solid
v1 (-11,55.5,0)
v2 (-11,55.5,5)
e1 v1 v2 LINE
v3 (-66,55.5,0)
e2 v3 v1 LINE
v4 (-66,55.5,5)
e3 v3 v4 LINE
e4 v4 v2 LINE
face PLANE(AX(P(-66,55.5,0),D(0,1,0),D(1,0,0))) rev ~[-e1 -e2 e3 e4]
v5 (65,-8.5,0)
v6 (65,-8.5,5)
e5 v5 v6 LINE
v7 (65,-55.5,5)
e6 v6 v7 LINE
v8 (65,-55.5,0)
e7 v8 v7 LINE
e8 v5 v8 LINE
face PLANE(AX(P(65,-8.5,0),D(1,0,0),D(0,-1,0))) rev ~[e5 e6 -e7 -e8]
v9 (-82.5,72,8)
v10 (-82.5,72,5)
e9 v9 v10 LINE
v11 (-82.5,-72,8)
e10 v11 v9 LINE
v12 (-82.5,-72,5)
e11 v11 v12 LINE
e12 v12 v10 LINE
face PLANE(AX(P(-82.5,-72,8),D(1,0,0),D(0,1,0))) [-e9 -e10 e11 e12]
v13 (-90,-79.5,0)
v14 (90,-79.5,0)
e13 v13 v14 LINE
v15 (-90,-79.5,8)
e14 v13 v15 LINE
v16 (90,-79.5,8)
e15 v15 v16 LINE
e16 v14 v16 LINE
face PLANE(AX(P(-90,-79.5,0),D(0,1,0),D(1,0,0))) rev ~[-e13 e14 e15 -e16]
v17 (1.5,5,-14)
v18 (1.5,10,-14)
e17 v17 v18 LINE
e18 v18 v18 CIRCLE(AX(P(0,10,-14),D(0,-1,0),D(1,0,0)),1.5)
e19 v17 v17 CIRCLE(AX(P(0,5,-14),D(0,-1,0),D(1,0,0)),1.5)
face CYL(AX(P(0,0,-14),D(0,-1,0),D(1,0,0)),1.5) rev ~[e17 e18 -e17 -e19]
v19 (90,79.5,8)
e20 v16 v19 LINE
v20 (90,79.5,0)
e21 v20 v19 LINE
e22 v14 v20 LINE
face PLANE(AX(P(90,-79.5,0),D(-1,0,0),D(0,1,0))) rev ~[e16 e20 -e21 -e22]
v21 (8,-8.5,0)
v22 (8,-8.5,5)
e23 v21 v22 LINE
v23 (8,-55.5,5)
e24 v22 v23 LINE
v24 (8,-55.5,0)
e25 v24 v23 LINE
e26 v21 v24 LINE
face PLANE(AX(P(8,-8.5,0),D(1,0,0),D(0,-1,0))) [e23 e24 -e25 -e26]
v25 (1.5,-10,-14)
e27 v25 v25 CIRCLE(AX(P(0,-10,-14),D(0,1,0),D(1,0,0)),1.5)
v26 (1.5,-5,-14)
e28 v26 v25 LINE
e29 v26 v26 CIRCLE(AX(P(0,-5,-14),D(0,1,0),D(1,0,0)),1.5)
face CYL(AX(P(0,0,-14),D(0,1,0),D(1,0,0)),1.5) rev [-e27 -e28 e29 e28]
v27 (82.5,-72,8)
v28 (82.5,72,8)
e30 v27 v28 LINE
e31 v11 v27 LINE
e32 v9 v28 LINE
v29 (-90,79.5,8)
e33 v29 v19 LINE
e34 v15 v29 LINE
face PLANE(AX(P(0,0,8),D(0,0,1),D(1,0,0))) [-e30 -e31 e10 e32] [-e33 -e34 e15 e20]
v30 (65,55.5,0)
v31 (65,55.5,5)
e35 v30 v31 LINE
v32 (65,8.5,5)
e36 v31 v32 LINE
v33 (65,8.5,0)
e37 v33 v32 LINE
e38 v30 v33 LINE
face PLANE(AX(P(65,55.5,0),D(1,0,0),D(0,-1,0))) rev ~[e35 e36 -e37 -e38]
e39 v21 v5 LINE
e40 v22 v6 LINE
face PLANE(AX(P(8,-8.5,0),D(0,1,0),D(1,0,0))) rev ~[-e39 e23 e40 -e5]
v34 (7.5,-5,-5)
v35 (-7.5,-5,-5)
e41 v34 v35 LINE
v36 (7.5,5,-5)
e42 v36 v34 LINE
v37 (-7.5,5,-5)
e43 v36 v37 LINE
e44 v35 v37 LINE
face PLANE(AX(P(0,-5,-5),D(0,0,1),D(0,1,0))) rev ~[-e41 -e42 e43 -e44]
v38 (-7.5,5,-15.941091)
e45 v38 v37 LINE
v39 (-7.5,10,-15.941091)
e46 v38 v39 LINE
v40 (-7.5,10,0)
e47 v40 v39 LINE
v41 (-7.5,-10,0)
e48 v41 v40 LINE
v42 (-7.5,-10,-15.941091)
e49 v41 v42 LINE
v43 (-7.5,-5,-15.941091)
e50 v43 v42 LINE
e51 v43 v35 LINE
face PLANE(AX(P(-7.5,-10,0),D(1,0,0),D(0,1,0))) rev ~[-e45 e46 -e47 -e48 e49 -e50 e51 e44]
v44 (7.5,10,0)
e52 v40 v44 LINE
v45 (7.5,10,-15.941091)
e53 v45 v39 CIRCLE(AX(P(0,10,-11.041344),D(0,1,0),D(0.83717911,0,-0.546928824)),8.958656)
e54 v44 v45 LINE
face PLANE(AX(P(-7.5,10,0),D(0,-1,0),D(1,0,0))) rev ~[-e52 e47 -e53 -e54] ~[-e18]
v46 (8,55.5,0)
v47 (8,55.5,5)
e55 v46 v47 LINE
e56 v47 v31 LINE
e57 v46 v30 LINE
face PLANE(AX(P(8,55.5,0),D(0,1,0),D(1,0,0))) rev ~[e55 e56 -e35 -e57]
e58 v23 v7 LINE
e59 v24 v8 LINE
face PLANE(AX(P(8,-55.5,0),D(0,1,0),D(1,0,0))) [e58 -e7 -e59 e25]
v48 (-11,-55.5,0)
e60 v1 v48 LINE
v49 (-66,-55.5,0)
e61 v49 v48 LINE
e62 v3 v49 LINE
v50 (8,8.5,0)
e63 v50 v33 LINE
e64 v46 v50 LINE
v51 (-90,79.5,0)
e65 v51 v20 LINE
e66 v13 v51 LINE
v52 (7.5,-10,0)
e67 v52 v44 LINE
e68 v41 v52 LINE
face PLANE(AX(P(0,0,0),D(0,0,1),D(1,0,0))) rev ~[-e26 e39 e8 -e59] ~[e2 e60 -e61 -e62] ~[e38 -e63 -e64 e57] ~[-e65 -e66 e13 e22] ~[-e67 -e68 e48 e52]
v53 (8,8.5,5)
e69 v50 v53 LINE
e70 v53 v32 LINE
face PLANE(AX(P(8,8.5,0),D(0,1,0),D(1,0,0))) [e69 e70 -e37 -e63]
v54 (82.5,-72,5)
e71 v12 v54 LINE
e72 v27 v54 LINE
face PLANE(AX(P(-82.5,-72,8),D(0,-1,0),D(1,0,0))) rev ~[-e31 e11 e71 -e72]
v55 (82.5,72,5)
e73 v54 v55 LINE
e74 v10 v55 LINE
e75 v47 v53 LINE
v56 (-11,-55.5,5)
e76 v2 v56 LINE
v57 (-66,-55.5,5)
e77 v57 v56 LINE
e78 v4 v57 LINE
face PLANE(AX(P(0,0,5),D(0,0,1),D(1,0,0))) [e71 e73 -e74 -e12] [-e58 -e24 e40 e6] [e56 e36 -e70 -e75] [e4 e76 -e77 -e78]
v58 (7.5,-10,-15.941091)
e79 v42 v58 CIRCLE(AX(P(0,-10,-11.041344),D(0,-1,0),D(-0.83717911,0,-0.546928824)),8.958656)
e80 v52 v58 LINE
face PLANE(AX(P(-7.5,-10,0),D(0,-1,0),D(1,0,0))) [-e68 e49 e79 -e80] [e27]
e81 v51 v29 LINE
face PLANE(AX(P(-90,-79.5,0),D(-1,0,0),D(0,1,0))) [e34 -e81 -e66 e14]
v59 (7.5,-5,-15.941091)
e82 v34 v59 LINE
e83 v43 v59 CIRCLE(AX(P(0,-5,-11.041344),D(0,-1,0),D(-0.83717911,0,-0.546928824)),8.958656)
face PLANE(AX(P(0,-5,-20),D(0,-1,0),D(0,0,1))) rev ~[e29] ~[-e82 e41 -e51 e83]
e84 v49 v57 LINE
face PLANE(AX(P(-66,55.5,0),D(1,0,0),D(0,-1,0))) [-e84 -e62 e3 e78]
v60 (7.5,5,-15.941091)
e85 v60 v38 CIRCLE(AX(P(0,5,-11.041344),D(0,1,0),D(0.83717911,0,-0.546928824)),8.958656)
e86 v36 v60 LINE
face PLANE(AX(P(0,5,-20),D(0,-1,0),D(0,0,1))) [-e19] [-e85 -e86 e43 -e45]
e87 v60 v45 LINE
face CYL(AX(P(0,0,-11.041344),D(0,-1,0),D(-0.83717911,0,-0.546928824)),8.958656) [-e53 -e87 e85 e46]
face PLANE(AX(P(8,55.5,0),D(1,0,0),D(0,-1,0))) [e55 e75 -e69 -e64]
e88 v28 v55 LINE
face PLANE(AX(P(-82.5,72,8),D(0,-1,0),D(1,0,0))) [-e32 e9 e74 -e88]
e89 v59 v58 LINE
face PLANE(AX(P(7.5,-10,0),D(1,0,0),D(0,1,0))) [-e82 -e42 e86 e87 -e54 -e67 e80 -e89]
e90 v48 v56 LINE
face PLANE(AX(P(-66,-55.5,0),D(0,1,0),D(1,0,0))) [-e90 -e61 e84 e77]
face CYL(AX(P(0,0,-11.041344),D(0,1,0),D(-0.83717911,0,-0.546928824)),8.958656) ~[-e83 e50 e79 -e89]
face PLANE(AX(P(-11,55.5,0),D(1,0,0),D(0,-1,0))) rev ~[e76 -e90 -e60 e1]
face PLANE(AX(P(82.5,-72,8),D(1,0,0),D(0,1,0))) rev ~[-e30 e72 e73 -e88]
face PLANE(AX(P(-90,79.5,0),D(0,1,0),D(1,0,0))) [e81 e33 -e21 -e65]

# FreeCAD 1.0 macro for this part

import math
import FreeCAD as App
import Part
import Sketcher

V = App.Vector


def add_polygon(sketch, points):
    """Adds a closed chain of lines whose ends are joined by coincident constraints."""
    first, n = sketch.GeometryCount, len(points)
    for a, b in zip(points, points[1:] + points[:1]):
        sketch.addGeometry(Part.LineSegment(App.Vector(*a, 0), App.Vector(*b, 0)), False)
    for i in range(n):
        sketch.addConstraint(Sketcher.Constraint("Coincident", first + i, 2, first + (i + 1) % n, 1))

doc = App.newDocument("Part")
body = doc.addObject("PartDesign::Body", "Body")

# Sketch on XY plane
sketch1 = body.newObject("Sketcher::SketchObject", "Sketch")
sketch1.AttachmentSupport = (doc.getObject("XY_Plane"), [""])
sketch1.MapMode = "FlatFace"
add_polygon(sketch1, [(-90, 80), (-90, -80), (90, -80), (90, 80)])  # lines 0-3
sketch1.addConstraint(Sketcher.Constraint("Vertical", 0))
sketch1.addConstraint(Sketcher.Constraint("Horizontal", 1))
sketch1.addConstraint(Sketcher.Constraint("Vertical", 2))
sketch1.addConstraint(Sketcher.Constraint("Horizontal", 3))
sketch1.addConstraint(Sketcher.Constraint("Symmetric", 0, 2, 2, 2, -1, 1))
sketch1.addConstraint(Sketcher.Constraint("DistanceX", 1, 1, 1, 2, 180.0))
sketch1.addConstraint(Sketcher.Constraint("DistanceY", 0, 2, 0, 1, 159.0))
pad1 = body.newObject("PartDesign::Pad", "Pad")
pad1.Profile = sketch1
pad1.Length = 8

# Sketch on XY plane
sketch2 = body.newObject("Sketcher::SketchObject", "Sketch001")
sketch2.AttachmentSupport = (doc.getObject("XY_Plane"), [""])
sketch2.MapMode = "FlatFace"
add_polygon(sketch2, [(-66, -56), (-66, 56), (-11, 56), (-11, -56)])  # lines 0-3
add_polygon(sketch2, [(8, -56), (8, -8), (65, -8), (65, -56)])  # lines 4-7
add_polygon(sketch2, [(8, 8), (8, 56), (65, 56), (65, 8)])  # lines 8-11
sketch2.addConstraint(Sketcher.Constraint("Vertical", 0))
sketch2.addConstraint(Sketcher.Constraint("Horizontal", 1))
sketch2.addConstraint(Sketcher.Constraint("Vertical", 2))
sketch2.addConstraint(Sketcher.Constraint("Horizontal", 3))
sketch2.addConstraint(Sketcher.Constraint("Vertical", 4))
sketch2.addConstraint(Sketcher.Constraint("Horizontal", 5))
sketch2.addConstraint(Sketcher.Constraint("Vertical", 6))
sketch2.addConstraint(Sketcher.Constraint("Horizontal", 7))
sketch2.addConstraint(Sketcher.Constraint("Vertical", 8))
sketch2.addConstraint(Sketcher.Constraint("Horizontal", 9))
sketch2.addConstraint(Sketcher.Constraint("Vertical", 10))
sketch2.addConstraint(Sketcher.Constraint("Horizontal", 11))
sketch2.addConstraint(Sketcher.Constraint("Symmetric", 7, 2, 8, 2, -1))
sketch2.addConstraint(Sketcher.Constraint("Symmetric", 5, 2, 10, 2, -1))
sketch2.addConstraint(Sketcher.Constraint("Horizontal", 3, 2, 6, 2))
sketch2.addConstraint(Sketcher.Constraint("Horizontal", 1, 2, 8, 2))
sketch2.addConstraint(Sketcher.Constraint("DistanceX", 1, 1, 1, 2, 55.0))
sketch2.addConstraint(Sketcher.Constraint("DistanceX", 5, 1, 5, 2, 57.0))
sketch2.addConstraint(Sketcher.Constraint("DistanceY", 0, 1, 0, 2, 111.0))
sketch2.addConstraint(Sketcher.Constraint("DistanceY", 4, 1, 4, 2, 47.0))
sketch2.addConstraint(Sketcher.Constraint("DistanceX", 0, 2, -1, 1, 66.0))
sketch2.addConstraint(Sketcher.Constraint("DistanceX", -1, 1, 4, 2, 8.0))
pocket1 = body.newObject("PartDesign::Pocket", "Pocket")
pocket1.Profile = sketch2
pocket1.Type = "ThroughAll"
pocket1.Reversed = True

# Sketch on XY plane
sketch3 = body.newObject("Sketcher::SketchObject", "Sketch002")
sketch3.AttachmentSupport = (doc.getObject("XY_Plane"), [""])
sketch3.MapMode = "FlatFace"
add_polygon(sketch3, [(-8, 10), (-8, -10), (8, -10), (8, 10)])  # lines 0-3
sketch3.addConstraint(Sketcher.Constraint("Vertical", 0))
sketch3.addConstraint(Sketcher.Constraint("Horizontal", 1))
sketch3.addConstraint(Sketcher.Constraint("Vertical", 2))
sketch3.addConstraint(Sketcher.Constraint("Horizontal", 3))
sketch3.addConstraint(Sketcher.Constraint("Symmetric", 0, 2, 2, 2, -1, 1))
sketch3.addConstraint(Sketcher.Constraint("DistanceX", 1, 1, 1, 2, 15.0))
sketch3.addConstraint(Sketcher.Constraint("DistanceY", 0, 2, 0, 1, 20.0))
pad2 = body.newObject("PartDesign::Pad", "Pad001")
pad2.Profile = sketch3
pad2.Length = 20
pad2.Reversed = True

# Sketch on YZ plane
sketch4 = body.newObject("Sketcher::SketchObject", "Sketch003")
sketch4.AttachmentSupport = (doc.getObject("YZ_Plane"), [""])
sketch4.MapMode = "FlatFace"
add_polygon(sketch4, [(-5, -5), (-5, -20), (5, -20), (5, -5)])  # lines 0-3
sketch4.addConstraint(Sketcher.Constraint("Vertical", 0))
sketch4.addConstraint(Sketcher.Constraint("Horizontal", 1))
sketch4.addConstraint(Sketcher.Constraint("Vertical", 2))
sketch4.addConstraint(Sketcher.Constraint("Horizontal", 3))
sketch4.addConstraint(Sketcher.Constraint("DistanceX", 1, 1, 1, 2, 10.0))
sketch4.addConstraint(Sketcher.Constraint("DistanceY", 0, 2, 0, 1, 15.0))
sketch4.addConstraint(Sketcher.Constraint("DistanceX", 0, 2, -1, 1, 5.0))
sketch4.addConstraint(Sketcher.Constraint("DistanceY", 0, 2, -1, 1, 20.0))
pocket2 = body.newObject("PartDesign::Pocket", "Pocket001")
pocket2.Profile = sketch4
pocket2.Type = "ThroughAll"
pocket2.Midplane = True

# Sketch on XZ plane
sketch5 = body.newObject("Sketcher::SketchObject", "Sketch004")
sketch5.AttachmentSupport = (doc.getObject("XZ_Plane"), [""])
sketch5.MapMode = "FlatFace"
sketch5.addGeometry(Part.Circle(V(0, -14, 0), V(0, 0, 1), 1.5), False)
sketch5.addGeometry(Part.ArcOfCircle(Part.Circle(V(0, -11, 0), V(0, 0, 1), 9), math.radians(-147), math.radians(-33)), False)
sketch5.addGeometry(Part.LineSegment(V(-7.5, -15.9, 0), V(-9.5, -15.9, 0)), False)
sketch5.addGeometry(Part.LineSegment(V(-9.5, -15.9, 0), V(-9.5, -32.9, 0)), False)
sketch5.addGeometry(Part.LineSegment(V(-9.5, -32.9, 0), V(9.5, -32.9, 0)), False)
sketch5.addGeometry(Part.LineSegment(V(9.5, -32.9, 0), V(9.5, -15.9, 0)), False)
sketch5.addGeometry(Part.LineSegment(V(9.5, -15.9, 0), V(7.5, -15.9, 0)), False)
sketch5.addConstraint(Sketcher.Constraint("Coincident", 1, 1, 2, 1))
sketch5.addConstraint(Sketcher.Constraint("Coincident", 2, 2, 3, 1))
sketch5.addConstraint(Sketcher.Constraint("Coincident", 3, 2, 4, 1))
sketch5.addConstraint(Sketcher.Constraint("Coincident", 4, 2, 5, 1))
sketch5.addConstraint(Sketcher.Constraint("Coincident", 5, 2, 6, 1))
sketch5.addConstraint(Sketcher.Constraint("Coincident", 6, 2, 1, 2))
sketch5.addConstraint(Sketcher.Constraint("Horizontal", 2))
sketch5.addConstraint(Sketcher.Constraint("Vertical", 3))
sketch5.addConstraint(Sketcher.Constraint("Horizontal", 4))
sketch5.addConstraint(Sketcher.Constraint("Vertical", 5))
sketch5.addConstraint(Sketcher.Constraint("Horizontal", 6))
sketch5.addConstraint(Sketcher.Constraint("Symmetric", 2, 2, 5, 2, -2))
sketch5.addConstraint(Sketcher.Constraint("PointOnObject", 0, 3, -2))
sketch5.addConstraint(Sketcher.Constraint("PointOnObject", 1, 3, -2))
sketch5.addConstraint(Sketcher.Constraint("Diameter", 0, 3.0))
sketch5.addConstraint(Sketcher.Constraint("DistanceX", 2, 2, 2, 1, 2.0))
sketch5.addConstraint(Sketcher.Constraint("DistanceX", 4, 1, 4, 2, 19.0))
sketch5.addConstraint(Sketcher.Constraint("DistanceY", 0, 3, -1, 1, 14.0))
sketch5.addConstraint(Sketcher.Constraint("Radius", 1, 8.958656))
sketch5.addConstraint(Sketcher.Constraint("DistanceY", 3, 2, 3, 1, 16.966894))
sketch5.addConstraint(Sketcher.Constraint("DistanceY", 1, 1, -1, 1, 15.941091))
pocket3 = body.newObject("PartDesign::Pocket", "Pocket002")
pocket3.Profile = sketch5
pocket3.Type = "ThroughAll"
pocket3.Midplane = True

# Sketch on XY plane
sketch6 = body.newObject("Sketcher::SketchObject", "Sketch005")
sketch6.AttachmentSupport = (doc.getObject("XY_Plane"), [""])
sketch6.MapMode = "FlatFace"
sketch6.AttachmentOffset = App.Placement(V(0, 0, 8), App.Rotation())
add_polygon(sketch6, [(-82, 72), (-82, -72), (82, -72), (82, 72)])  # lines 0-3
sketch6.addConstraint(Sketcher.Constraint("Vertical", 0))
sketch6.addConstraint(Sketcher.Constraint("Horizontal", 1))
sketch6.addConstraint(Sketcher.Constraint("Vertical", 2))
sketch6.addConstraint(Sketcher.Constraint("Horizontal", 3))
sketch6.addConstraint(Sketcher.Constraint("Symmetric", 0, 2, 2, 2, -1, 1))
sketch6.addConstraint(Sketcher.Constraint("DistanceX", 1, 1, 1, 2, 165.0))
sketch6.addConstraint(Sketcher.Constraint("DistanceY", 0, 2, 0, 1, 144.0))
pocket4 = body.newObject("PartDesign::Pocket", "Pocket003")
pocket4.Profile = sketch6
pocket4.Length = 3

doc.recompute()
